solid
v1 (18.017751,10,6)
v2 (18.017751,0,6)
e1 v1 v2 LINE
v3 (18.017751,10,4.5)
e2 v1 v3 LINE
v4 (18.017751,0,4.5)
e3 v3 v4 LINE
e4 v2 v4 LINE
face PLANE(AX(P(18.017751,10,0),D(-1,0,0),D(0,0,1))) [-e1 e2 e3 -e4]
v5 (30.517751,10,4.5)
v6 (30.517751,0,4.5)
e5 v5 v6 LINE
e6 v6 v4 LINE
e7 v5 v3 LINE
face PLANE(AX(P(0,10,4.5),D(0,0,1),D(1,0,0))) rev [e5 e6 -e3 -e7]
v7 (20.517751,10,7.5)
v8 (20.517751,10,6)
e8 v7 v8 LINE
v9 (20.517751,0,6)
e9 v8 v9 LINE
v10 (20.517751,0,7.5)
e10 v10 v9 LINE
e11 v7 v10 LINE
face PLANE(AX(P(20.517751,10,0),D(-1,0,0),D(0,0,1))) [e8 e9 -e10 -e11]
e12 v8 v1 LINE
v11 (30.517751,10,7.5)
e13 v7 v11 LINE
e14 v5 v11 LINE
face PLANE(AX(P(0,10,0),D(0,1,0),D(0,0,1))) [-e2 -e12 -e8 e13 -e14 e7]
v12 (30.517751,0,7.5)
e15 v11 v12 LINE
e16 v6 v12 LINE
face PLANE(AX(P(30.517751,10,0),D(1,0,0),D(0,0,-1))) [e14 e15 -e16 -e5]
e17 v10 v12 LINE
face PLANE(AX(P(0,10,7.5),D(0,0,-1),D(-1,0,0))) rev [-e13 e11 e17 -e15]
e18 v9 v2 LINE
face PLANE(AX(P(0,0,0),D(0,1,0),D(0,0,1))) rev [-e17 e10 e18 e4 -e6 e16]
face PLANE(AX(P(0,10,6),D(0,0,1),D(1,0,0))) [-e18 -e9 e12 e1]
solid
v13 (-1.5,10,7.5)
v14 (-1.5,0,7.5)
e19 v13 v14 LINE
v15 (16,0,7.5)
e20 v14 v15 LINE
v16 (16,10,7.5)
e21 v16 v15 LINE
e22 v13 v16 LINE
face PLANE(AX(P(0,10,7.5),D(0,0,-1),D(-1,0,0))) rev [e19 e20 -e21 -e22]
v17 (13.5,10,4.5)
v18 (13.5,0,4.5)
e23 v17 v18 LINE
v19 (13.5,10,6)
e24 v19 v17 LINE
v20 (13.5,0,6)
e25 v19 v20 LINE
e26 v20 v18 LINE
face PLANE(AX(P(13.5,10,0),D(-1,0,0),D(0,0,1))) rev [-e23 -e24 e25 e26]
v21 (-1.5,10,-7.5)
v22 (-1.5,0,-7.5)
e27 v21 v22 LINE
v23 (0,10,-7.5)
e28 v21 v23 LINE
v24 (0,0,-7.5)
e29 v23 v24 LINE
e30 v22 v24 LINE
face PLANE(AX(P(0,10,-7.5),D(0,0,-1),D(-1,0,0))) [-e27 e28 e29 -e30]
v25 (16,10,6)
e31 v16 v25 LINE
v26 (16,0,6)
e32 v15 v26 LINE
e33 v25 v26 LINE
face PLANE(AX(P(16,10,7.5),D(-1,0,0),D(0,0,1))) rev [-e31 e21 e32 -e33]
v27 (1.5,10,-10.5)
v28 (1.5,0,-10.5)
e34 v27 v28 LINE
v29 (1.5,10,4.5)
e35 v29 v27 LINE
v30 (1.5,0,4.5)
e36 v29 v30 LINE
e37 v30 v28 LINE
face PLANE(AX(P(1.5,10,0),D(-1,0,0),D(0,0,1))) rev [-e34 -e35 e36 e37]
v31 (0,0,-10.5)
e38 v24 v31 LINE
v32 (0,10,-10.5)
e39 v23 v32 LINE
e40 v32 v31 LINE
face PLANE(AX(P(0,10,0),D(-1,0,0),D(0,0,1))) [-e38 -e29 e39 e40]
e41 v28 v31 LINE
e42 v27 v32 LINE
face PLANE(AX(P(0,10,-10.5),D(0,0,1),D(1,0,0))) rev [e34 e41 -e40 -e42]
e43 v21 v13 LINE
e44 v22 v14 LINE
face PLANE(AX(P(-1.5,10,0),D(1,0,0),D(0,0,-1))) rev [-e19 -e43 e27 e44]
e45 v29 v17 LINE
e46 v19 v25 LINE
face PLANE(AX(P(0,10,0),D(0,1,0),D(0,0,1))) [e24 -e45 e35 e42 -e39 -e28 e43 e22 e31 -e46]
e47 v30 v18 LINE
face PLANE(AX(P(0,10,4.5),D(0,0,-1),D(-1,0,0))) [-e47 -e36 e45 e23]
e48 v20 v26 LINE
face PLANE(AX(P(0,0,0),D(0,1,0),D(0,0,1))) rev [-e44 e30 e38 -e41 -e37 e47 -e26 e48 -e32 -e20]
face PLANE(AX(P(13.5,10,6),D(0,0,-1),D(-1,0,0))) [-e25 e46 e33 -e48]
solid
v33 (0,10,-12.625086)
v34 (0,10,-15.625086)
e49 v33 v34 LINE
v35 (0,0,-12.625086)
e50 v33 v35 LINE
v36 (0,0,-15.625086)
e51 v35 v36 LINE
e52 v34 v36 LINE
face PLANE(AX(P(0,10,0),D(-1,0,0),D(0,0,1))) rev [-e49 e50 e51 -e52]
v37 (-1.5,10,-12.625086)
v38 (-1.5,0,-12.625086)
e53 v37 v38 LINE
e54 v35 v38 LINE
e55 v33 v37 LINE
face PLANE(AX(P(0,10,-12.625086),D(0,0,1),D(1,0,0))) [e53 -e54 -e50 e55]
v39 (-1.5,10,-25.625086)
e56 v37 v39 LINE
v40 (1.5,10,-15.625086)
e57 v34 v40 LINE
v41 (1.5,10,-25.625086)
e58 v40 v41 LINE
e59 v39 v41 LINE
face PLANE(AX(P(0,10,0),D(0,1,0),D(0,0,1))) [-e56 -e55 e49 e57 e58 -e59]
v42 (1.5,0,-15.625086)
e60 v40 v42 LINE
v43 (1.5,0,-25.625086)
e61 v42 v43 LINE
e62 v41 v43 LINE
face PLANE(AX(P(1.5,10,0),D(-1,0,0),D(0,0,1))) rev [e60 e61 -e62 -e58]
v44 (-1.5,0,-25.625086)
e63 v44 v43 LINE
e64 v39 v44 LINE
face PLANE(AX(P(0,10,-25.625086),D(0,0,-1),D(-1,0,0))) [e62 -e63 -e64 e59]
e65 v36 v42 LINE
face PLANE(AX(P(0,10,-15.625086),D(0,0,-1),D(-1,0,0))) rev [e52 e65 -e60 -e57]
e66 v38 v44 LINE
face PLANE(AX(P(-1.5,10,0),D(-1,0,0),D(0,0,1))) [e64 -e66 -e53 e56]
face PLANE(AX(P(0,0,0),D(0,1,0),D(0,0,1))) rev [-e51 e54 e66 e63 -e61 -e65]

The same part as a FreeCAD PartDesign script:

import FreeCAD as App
import Part
import Sketcher

V = App.Vector
Q = App.Units.Quantity

doc = App.newDocument("Part")
body = doc.addObject("PartDesign::Body", "Body")
body.AllowCompound = True

# Sketch on XZ plane
sketch1 = body.newObject("Sketcher::SketchObject", "Sketch")
sketch1.AttachmentSupport = (doc.getObject("XZ_Plane"), [""])
sketch1.MapMode = "FlatFace"
sketch1.addGeometry(Part.LineSegment(V(0, -15.6, 0), V(1.5, -15.6, 0)), False)
sketch1.addGeometry(Part.LineSegment(V(1.5, -15.6, 0), V(1.5, -25.6, 0)), False)
sketch1.addGeometry(Part.LineSegment(V(1.5, -25.6, 0), V(-1.5, -25.6, 0)), False)
sketch1.addGeometry(Part.LineSegment(V(-1.5, -25.6, 0), V(-1.5, -12.6, 0)), False)
sketch1.addGeometry(Part.LineSegment(V(-1.5, -12.6, 0), V(0, -12.6, 0)), False)
sketch1.addGeometry(Part.LineSegment(V(0, -12.6, 0), V(0, -15.6, 0)), False)
sketch1.addGeometry(Part.LineSegment(V(0, -10.5, 0), V(0, -7.5, 0)), False)
sketch1.addGeometry(Part.LineSegment(V(0, -7.5, 0), V(-1.5, -7.5, 0)), False)
sketch1.addGeometry(Part.LineSegment(V(-1.5, -7.5, 0), V(-1.5, 7.5, 0)), False)
sketch1.addGeometry(Part.LineSegment(V(-1.5, 7.5, 0), V(16, 7.5, 0)), False)
sketch1.addGeometry(Part.LineSegment(V(16, 7.5, 0), V(16, 6, 0)), False)
sketch1.addGeometry(Part.LineSegment(V(16, 6, 0), V(13.5, 6, 0)), False)
sketch1.addGeometry(Part.LineSegment(V(13.5, 6, 0), V(13.5, 4.5, 0)), False)
sketch1.addGeometry(Part.LineSegment(V(13.5, 4.5, 0), V(1.5, 4.5, 0)), False)
sketch1.addGeometry(Part.LineSegment(V(1.5, 4.5, 0), V(1.5, -10.5, 0)), False)
sketch1.addGeometry(Part.LineSegment(V(1.5, -10.5, 0), V(0, -10.5, 0)), False)
sketch1.addGeometry(Part.LineSegment(V(18, 4.5, 0), V(18, 6, 0)), False)
sketch1.addGeometry(Part.LineSegment(V(18, 6, 0), V(20.5, 6, 0)), False)
sketch1.addGeometry(Part.LineSegment(V(20.5, 6, 0), V(20.5, 7.5, 0)), False)
sketch1.addGeometry(Part.LineSegment(V(20.5, 7.5, 0), V(30.5, 7.5, 0)), False)
sketch1.addGeometry(Part.LineSegment(V(30.5, 7.5, 0), V(30.5, 4.5, 0)), False)
sketch1.addGeometry(Part.LineSegment(V(30.5, 4.5, 0), V(18, 4.5, 0)), False)
sketch1.addConstraint(Sketcher.Constraint("Coincident", 0, 2, 1, 1))
sketch1.addConstraint(Sketcher.Constraint("Coincident", 1, 2, 2, 1))
sketch1.addConstraint(Sketcher.Constraint("Coincident", 2, 2, 3, 1))
sketch1.addConstraint(Sketcher.Constraint("Coincident", 3, 2, 4, 1))
sketch1.addConstraint(Sketcher.Constraint("Coincident", 4, 2, 5, 1))
sketch1.addConstraint(Sketcher.Constraint("Coincident", 5, 2, 0, 1))
sketch1.addConstraint(Sketcher.Constraint("Coincident", 6, 2, 7, 1))
sketch1.addConstraint(Sketcher.Constraint("Coincident", 7, 2, 8, 1))
sketch1.addConstraint(Sketcher.Constraint("Coincident", 8, 2, 9, 1))
sketch1.addConstraint(Sketcher.Constraint("Coincident", 9, 2, 10, 1))
sketch1.addConstraint(Sketcher.Constraint("Coincident", 10, 2, 11, 1))
sketch1.addConstraint(Sketcher.Constraint("Coincident", 11, 2, 12, 1))
sketch1.addConstraint(Sketcher.Constraint("Coincident", 12, 2, 13, 1))
sketch1.addConstraint(Sketcher.Constraint("Coincident", 13, 2, 14, 1))
sketch1.addConstraint(Sketcher.Constraint("Coincident", 14, 2, 15, 1))
sketch1.addConstraint(Sketcher.Constraint("Coincident", 15, 2, 6, 1))
sketch1.addConstraint(Sketcher.Constraint("Coincident", 16, 2, 17, 1))
sketch1.addConstraint(Sketcher.Constraint("Coincident", 17, 2, 18, 1))
sketch1.addConstraint(Sketcher.Constraint("Coincident", 18, 2, 19, 1))
sketch1.addConstraint(Sketcher.Constraint("Coincident", 19, 2, 20, 1))
sketch1.addConstraint(Sketcher.Constraint("Coincident", 20, 2, 21, 1))
sketch1.addConstraint(Sketcher.Constraint("Coincident", 21, 2, 16, 1))
sketch1.addConstraint(Sketcher.Constraint("Horizontal", 0))
sketch1.addConstraint(Sketcher.Constraint("Vertical", 1))
sketch1.addConstraint(Sketcher.Constraint("Horizontal", 2))
sketch1.addConstraint(Sketcher.Constraint("Vertical", 3))
sketch1.addConstraint(Sketcher.Constraint("Horizontal", 4))
sketch1.addConstraint(Sketcher.Constraint("Vertical", 5))
sketch1.addConstraint(Sketcher.Constraint("Vertical", 6))
sketch1.addConstraint(Sketcher.Constraint("Horizontal", 7))
sketch1.addConstraint(Sketcher.Constraint("Vertical", 8))
sketch1.addConstraint(Sketcher.Constraint("Horizontal", 9))
sketch1.addConstraint(Sketcher.Constraint("Vertical", 10))
sketch1.addConstraint(Sketcher.Constraint("Horizontal", 11))
sketch1.addConstraint(Sketcher.Constraint("Vertical", 12))
sketch1.addConstraint(Sketcher.Constraint("Horizontal", 13))
sketch1.addConstraint(Sketcher.Constraint("Vertical", 14))
sketch1.addConstraint(Sketcher.Constraint("Horizontal", 15))
sketch1.addConstraint(Sketcher.Constraint("Vertical", 16))
sketch1.addConstraint(Sketcher.Constraint("Horizontal", 17))
sketch1.addConstraint(Sketcher.Constraint("Vertical", 18))
sketch1.addConstraint(Sketcher.Constraint("Horizontal", 19))
sketch1.addConstraint(Sketcher.Constraint("Vertical", 20))
sketch1.addConstraint(Sketcher.Constraint("Horizontal", 21))
sketch1.addConstraint(Sketcher.Constraint("PointOnObject", 4, 2, -2))
sketch1.addConstraint(Sketcher.Constraint("PointOnObject", 6, 2, -2))
sketch1.addConstraint(Sketcher.Constraint("Horizontal", 11, 2, 16, 2))
sketch1.addConstraint(Sketcher.Constraint("Horizontal", 9, 2, 18, 2))
sketch1.addConstraint(Sketcher.Constraint("Horizontal", 13, 2, 20, 2))
sketch1.addConstraint(Sketcher.Constraint("Vertical", 3, 2, 7, 2))
sketch1.addConstraint(Sketcher.Constraint("Vertical", 1, 2, 13, 2))
sketch1.addConstraint(Sketcher.Constraint("Equal", 0, 4))
sketch1.addConstraint(Sketcher.Constraint("Equal", 11, 17))
sketch1.addConstraint(Sketcher.Constraint("Equal", 19, 1))
sketch1.addConstraint(Sketcher.Constraint("Equal", 2, 5))
sketch1.addConstraint(Sketcher.Constraint("Equal", 5, 6))
sketch1.addConstraint(Sketcher.Constraint("Equal", 15, 10))
sketch1.addConstraint(Sketcher.Constraint("Equal", 10, 12))
sketch1.addConstraint(Sketcher.Constraint("DistanceX", 2, 2, 2, 1, Q("3 mm")))
sketch1.addConstraint(Sketcher.Constraint("DistanceX", 13, 2, 13, 1, Q("12 mm")))
sketch1.addConstraint(Sketcher.Constraint("DistanceX", 19, 1, 19, 2, Q("10 mm")))
sketch1.addConstraint(Sketcher.Constraint("DistanceY", 8, 1, 8, 2, Q("15 mm")))
sketch1.addConstraint(Sketcher.Constraint("DistanceX", 9, 1, 9, 2, Q("17.5 mm")))
sketch1.addConstraint(Sketcher.Constraint("DistanceY", -1, 1, 10, 2, Q("6 mm")))
sketch1.addConstraint(Sketcher.Constraint("DistanceX", -1, 1, 16, 2, Q("18.017751 mm")))
sketch1.addConstraint(Sketcher.Constraint("DistanceY", 0, 2, -1, 1, Q("15.625086 mm")))
pad1 = body.newObject("PartDesign::Pad", "Pad")
pad1.Profile = sketch1
pad1.Length = 10
pad1.Reversed = True

doc.recompute()
